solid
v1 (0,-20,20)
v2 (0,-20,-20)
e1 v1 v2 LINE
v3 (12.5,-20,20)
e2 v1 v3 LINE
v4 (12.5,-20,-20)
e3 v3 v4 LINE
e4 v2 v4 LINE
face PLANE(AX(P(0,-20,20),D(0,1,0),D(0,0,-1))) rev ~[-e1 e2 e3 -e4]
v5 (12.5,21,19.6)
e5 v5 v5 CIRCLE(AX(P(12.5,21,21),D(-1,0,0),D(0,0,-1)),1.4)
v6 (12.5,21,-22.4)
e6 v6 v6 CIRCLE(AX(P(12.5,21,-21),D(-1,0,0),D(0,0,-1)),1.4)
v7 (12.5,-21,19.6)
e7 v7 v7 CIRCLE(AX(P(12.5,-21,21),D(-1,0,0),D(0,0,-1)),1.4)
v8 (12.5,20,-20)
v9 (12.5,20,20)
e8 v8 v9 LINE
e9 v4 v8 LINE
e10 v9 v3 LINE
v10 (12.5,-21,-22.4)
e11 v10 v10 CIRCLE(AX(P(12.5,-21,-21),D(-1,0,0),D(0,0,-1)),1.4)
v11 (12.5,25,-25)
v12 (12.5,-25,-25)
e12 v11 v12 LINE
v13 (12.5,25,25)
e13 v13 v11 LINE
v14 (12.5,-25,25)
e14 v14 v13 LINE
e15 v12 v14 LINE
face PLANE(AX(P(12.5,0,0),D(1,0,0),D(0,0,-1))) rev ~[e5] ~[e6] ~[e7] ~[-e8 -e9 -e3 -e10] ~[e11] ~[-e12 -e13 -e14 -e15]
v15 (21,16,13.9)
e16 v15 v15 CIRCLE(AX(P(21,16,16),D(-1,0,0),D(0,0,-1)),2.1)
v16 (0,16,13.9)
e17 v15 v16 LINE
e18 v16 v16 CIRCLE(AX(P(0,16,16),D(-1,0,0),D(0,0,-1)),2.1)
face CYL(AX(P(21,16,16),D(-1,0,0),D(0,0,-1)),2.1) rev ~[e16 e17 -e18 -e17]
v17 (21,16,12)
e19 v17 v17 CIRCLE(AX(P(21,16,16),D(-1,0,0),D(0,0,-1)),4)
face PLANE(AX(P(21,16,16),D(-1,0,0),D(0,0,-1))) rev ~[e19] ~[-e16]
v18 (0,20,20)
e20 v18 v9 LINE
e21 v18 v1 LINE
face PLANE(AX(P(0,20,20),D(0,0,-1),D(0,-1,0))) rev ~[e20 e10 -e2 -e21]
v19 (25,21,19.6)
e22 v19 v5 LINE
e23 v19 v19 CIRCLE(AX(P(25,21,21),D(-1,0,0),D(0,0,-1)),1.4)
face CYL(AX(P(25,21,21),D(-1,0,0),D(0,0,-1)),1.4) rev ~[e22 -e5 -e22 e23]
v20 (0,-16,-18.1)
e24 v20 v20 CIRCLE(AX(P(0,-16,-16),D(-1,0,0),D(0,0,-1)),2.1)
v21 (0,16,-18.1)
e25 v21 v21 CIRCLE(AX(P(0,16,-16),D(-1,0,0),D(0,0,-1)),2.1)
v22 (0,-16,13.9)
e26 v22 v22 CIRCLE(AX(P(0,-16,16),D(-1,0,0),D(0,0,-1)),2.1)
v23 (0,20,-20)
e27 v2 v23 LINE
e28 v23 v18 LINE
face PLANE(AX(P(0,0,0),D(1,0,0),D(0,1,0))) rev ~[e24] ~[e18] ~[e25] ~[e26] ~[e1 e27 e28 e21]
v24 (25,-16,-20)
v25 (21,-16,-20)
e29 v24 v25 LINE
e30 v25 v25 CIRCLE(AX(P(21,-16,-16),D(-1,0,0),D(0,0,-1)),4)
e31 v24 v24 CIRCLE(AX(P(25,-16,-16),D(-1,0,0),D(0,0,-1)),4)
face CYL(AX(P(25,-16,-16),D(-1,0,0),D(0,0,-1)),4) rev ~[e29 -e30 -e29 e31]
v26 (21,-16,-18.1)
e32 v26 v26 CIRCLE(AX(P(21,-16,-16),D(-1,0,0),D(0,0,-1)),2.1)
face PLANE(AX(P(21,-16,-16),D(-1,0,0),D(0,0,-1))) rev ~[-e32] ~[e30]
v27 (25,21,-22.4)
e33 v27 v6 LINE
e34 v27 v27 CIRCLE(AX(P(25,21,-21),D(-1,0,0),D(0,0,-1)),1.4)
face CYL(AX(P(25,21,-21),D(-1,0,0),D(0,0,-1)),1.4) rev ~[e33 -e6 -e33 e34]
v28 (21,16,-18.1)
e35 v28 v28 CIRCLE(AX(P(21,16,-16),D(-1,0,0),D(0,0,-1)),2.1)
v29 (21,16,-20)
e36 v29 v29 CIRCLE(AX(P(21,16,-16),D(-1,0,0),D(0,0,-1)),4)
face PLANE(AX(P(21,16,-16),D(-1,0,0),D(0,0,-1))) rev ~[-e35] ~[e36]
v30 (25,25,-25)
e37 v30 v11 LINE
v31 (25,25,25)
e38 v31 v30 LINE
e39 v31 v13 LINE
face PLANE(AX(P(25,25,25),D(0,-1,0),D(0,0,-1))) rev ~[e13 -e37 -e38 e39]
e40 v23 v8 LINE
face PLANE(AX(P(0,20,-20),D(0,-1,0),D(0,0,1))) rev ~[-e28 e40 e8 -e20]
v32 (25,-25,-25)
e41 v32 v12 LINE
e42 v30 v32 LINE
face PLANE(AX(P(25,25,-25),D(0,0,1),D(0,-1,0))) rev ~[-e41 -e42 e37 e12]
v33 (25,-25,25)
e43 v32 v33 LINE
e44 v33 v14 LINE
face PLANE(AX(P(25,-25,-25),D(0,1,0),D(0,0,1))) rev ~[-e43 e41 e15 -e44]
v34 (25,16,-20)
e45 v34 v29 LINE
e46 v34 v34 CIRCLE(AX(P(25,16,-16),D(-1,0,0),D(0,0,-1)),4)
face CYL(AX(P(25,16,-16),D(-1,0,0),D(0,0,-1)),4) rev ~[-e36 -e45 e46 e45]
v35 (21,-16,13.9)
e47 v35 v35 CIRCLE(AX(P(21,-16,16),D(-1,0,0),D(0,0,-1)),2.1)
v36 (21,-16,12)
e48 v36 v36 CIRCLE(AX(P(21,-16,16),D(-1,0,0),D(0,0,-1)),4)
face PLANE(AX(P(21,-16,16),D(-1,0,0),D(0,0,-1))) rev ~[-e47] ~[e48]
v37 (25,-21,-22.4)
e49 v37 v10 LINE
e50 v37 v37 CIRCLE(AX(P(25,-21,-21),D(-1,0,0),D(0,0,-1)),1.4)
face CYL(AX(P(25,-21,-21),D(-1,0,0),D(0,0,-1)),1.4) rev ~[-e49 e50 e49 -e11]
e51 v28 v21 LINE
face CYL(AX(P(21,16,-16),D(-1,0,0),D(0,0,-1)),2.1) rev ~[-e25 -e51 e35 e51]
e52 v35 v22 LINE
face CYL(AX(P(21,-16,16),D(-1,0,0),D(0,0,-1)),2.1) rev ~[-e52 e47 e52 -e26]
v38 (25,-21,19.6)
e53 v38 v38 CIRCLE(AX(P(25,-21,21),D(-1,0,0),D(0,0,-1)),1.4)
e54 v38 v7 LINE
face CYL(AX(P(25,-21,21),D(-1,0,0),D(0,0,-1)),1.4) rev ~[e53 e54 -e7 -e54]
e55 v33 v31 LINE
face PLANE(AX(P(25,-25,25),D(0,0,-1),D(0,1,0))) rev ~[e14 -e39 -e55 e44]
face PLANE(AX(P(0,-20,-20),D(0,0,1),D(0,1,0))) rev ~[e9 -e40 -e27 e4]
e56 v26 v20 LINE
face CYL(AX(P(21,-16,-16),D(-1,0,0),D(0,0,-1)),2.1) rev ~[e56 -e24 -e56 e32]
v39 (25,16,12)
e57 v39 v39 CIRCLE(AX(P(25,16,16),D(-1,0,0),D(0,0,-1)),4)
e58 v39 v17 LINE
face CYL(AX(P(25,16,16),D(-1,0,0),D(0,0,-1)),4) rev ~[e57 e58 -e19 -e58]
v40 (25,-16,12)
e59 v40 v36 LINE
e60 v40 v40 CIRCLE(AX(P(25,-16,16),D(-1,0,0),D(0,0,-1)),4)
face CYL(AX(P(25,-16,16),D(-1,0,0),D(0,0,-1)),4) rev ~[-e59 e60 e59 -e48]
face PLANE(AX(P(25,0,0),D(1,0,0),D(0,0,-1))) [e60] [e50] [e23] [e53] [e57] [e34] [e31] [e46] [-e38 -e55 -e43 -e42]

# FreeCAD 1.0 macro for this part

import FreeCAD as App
import Part
import Sketcher

V = App.Vector
Q = App.Units.Quantity

doc = App.newDocument("Part")
body = doc.addObject("PartDesign::Body", "Body")

# Sketch on YZ plane
sketch1 = body.newObject("Sketcher::SketchObject", "Sketch")
sketch1.AttachmentSupport = (doc.getObject("YZ_Plane"), [""])
sketch1.MapMode = "FlatFace"
sketch1.addGeometry([
    Part.LineSegment(V(20, -20, 0), V(20, 20, 0)),
    Part.LineSegment(V(20, 20, 0), V(-20, 20, 0)),
    Part.LineSegment(V(-20, 20, 0), V(-20, -20, 0)),
    Part.LineSegment(V(-20, -20, 0), V(20, -20, 0)),
], False)
sketch1.addConstraint([
    Sketcher.Constraint("Coincident", 0, 2, 1, 1),
    Sketcher.Constraint("Coincident", 1, 2, 2, 1),
    Sketcher.Constraint("Coincident", 2, 2, 3, 1),
    Sketcher.Constraint("Coincident", 3, 2, 0, 1),
    Sketcher.Constraint("Vertical", 0),
    Sketcher.Constraint("Horizontal", 1),
    Sketcher.Constraint("Vertical", 2),
    Sketcher.Constraint("Horizontal", 3),
    Sketcher.Constraint("Symmetric", 0, 2, 2, 2, -1, 1),
    Sketcher.Constraint("Equal", 3, 0),
    Sketcher.Constraint("DistanceX", 1, 2, 1, 1, Q("40 mm")),
])
pad1 = body.newObject("PartDesign::Pad", "Pad")
pad1.Profile = sketch1
pad1.Length = 25

# Sketch on YZ plane
sketch2 = body.newObject("Sketcher::SketchObject", "Sketch001")
sketch2.AttachmentSupport = (doc.getObject("YZ_Plane"), [""])
sketch2.MapMode = "FlatFace"
sketch2.AttachmentOffset = App.Placement(V(0, 0, 25), App.Rotation())
sketch2.addGeometry([
    Part.LineSegment(V(25, -25, 0), V(25, 25, 0)),
    Part.LineSegment(V(25, 25, 0), V(-25, 25, 0)),
    Part.LineSegment(V(-25, 25, 0), V(-25, -25, 0)),
    Part.LineSegment(V(-25, -25, 0), V(25, -25, 0)),
], False)
sketch2.addConstraint([
    Sketcher.Constraint("Coincident", 0, 2, 1, 1),
    Sketcher.Constraint("Coincident", 1, 2, 2, 1),
    Sketcher.Constraint("Coincident", 2, 2, 3, 1),
    Sketcher.Constraint("Coincident", 3, 2, 0, 1),
    Sketcher.Constraint("Vertical", 0),
    Sketcher.Constraint("Horizontal", 1),
    Sketcher.Constraint("Vertical", 2),
    Sketcher.Constraint("Horizontal", 3),
    Sketcher.Constraint("Symmetric", 0, 2, 2, 2, -1, 1),
    Sketcher.Constraint("Equal", 3, 0),
    Sketcher.Constraint("DistanceX", 1, 2, 1, 1, Q("50 mm")),
])
pad2 = body.newObject("PartDesign::Pad", "Pad001")
pad2.Profile = sketch2
pad2.Length = 12.5
pad2.Reversed = True

# Sketch on YZ plane
sketch3 = body.newObject("Sketcher::SketchObject", "Sketch002")
sketch3.AttachmentSupport = (doc.getObject("YZ_Plane"), [""])
sketch3.MapMode = "FlatFace"
sketch3.AttachmentOffset = App.Placement(V(0, 0, 25), App.Rotation())
sketch3.addGeometry([
    Part.Circle(V(-21, -21, 0), V(0, 0, 1), 1.4),  # 0
    Part.Circle(V(-21, 21, 0), V(0, 0, 1), 1.4),  # 1
    Part.Circle(V(21, 21, 0), V(0, 0, 1), 1.4),  # 2
    Part.Circle(V(21, -21, 0), V(0, 0, 1), 1.4),  # 3
    Part.Circle(V(-16, -16, 0), V(0, 0, 1), 1.4),  # 4
    Part.Circle(V(-16, 16, 0), V(0, 0, 1), 1.4),  # 5
    Part.Circle(V(16, 16, 0), V(0, 0, 1), 1.4),  # 6
    Part.Circle(V(16, -16, 0), V(0, 0, 1), 1.4),  # 7
], False)
sketch3.addConstraint([
    Sketcher.Constraint("Equal", 0, 1),
    Sketcher.Constraint("Equal", 1, 2),
    Sketcher.Constraint("Equal", 2, 3),
    Sketcher.Constraint("Equal", 3, 4),
    Sketcher.Constraint("Equal", 4, 5),
    Sketcher.Constraint("Equal", 5, 6),
    Sketcher.Constraint("Equal", 6, 7),
    Sketcher.Constraint("Symmetric", 0, 3, 2, 3, -1, 1),
    Sketcher.Constraint("Symmetric", 1, 3, 3, 3, -1, 1),
    Sketcher.Constraint("Symmetric", 4, 3, 6, 3, -1, 1),
    Sketcher.Constraint("Symmetric", 5, 3, 7, 3, -1, 1),
    Sketcher.Constraint("Symmetric", 1, 3, 2, 3, -2),
    Sketcher.Constraint("Symmetric", 5, 3, 6, 3, -2),
    Sketcher.Constraint("Diameter", 0, Q("2.8 mm")),
    Sketcher.Constraint("DistanceX", 0, 3, -1, 1, Q("21 mm")),
    Sketcher.Constraint("DistanceY", 0, 3, -1, 1, Q("21 mm")),
    Sketcher.Constraint("DistanceX", 4, 3, -1, 1, Q("16 mm")),
    Sketcher.Constraint("DistanceY", 4, 3, -1, 1, Q("16 mm")),
])
doc.recompute()
hole = body.newObject("PartDesign::Hole", "Hole")
hole.Profile = sketch3
hole.ThreadType = "None"
hole.Diameter = 2.8
hole.DepthType = "Dimension"
hole.Depth = 230
hole.DrillPoint = "Flat"

# Sketch on YZ plane
sketch4 = body.newObject("Sketcher::SketchObject", "Sketch003")
sketch4.AttachmentSupport = (doc.getObject("YZ_Plane"), [""])
sketch4.MapMode = "FlatFace"
sketch4.AttachmentOffset = App.Placement(V(0, 0, 25), App.Rotation())
sketch4.addGeometry([
    Part.Circle(V(16, 16, 0), V(0, 0, 1), 2.1),
    Part.Circle(V(16, -16, 0), V(0, 0, 1), 2.1),
    Part.Circle(V(-16, -16, 0), V(0, 0, 1), 2.1),
    Part.Circle(V(-16, 16, 0), V(0, 0, 1), 2.1),
], False)
sketch4.addConstraint([
    Sketcher.Constraint("Equal", 0, 1),
    Sketcher.Constraint("Equal", 1, 2),
    Sketcher.Constraint("Equal", 2, 3),
    Sketcher.Constraint("Symmetric", 0, 3, 2, 3, -1, 1),
    Sketcher.Constraint("Symmetric", 1, 3, 3, 3, -1, 1),
    Sketcher.Constraint("Symmetric", 1, 3, 2, 3, -2),
    Sketcher.Constraint("Diameter", 0, Q("4.2 mm")),
    Sketcher.Constraint("DistanceX", -1, 1, 0, 3, Q("16 mm")),
    Sketcher.Constraint("DistanceY", -1, 1, 0, 3, Q("16 mm")),
])
doc.recompute()
hole2 = body.newObject("PartDesign::Hole", "Hole001")
hole2.Profile = sketch4
hole2.ThreadType = "None"
hole2.Diameter = 4.2
hole2.DepthType = "Dimension"
hole2.Depth = 230
hole2.DrillPoint = "Flat"
hole2.HoleCutType = "Counterbore"
hole2.HoleCutDiameter = 8
hole2.HoleCutDepth = 4

doc.recompute()
